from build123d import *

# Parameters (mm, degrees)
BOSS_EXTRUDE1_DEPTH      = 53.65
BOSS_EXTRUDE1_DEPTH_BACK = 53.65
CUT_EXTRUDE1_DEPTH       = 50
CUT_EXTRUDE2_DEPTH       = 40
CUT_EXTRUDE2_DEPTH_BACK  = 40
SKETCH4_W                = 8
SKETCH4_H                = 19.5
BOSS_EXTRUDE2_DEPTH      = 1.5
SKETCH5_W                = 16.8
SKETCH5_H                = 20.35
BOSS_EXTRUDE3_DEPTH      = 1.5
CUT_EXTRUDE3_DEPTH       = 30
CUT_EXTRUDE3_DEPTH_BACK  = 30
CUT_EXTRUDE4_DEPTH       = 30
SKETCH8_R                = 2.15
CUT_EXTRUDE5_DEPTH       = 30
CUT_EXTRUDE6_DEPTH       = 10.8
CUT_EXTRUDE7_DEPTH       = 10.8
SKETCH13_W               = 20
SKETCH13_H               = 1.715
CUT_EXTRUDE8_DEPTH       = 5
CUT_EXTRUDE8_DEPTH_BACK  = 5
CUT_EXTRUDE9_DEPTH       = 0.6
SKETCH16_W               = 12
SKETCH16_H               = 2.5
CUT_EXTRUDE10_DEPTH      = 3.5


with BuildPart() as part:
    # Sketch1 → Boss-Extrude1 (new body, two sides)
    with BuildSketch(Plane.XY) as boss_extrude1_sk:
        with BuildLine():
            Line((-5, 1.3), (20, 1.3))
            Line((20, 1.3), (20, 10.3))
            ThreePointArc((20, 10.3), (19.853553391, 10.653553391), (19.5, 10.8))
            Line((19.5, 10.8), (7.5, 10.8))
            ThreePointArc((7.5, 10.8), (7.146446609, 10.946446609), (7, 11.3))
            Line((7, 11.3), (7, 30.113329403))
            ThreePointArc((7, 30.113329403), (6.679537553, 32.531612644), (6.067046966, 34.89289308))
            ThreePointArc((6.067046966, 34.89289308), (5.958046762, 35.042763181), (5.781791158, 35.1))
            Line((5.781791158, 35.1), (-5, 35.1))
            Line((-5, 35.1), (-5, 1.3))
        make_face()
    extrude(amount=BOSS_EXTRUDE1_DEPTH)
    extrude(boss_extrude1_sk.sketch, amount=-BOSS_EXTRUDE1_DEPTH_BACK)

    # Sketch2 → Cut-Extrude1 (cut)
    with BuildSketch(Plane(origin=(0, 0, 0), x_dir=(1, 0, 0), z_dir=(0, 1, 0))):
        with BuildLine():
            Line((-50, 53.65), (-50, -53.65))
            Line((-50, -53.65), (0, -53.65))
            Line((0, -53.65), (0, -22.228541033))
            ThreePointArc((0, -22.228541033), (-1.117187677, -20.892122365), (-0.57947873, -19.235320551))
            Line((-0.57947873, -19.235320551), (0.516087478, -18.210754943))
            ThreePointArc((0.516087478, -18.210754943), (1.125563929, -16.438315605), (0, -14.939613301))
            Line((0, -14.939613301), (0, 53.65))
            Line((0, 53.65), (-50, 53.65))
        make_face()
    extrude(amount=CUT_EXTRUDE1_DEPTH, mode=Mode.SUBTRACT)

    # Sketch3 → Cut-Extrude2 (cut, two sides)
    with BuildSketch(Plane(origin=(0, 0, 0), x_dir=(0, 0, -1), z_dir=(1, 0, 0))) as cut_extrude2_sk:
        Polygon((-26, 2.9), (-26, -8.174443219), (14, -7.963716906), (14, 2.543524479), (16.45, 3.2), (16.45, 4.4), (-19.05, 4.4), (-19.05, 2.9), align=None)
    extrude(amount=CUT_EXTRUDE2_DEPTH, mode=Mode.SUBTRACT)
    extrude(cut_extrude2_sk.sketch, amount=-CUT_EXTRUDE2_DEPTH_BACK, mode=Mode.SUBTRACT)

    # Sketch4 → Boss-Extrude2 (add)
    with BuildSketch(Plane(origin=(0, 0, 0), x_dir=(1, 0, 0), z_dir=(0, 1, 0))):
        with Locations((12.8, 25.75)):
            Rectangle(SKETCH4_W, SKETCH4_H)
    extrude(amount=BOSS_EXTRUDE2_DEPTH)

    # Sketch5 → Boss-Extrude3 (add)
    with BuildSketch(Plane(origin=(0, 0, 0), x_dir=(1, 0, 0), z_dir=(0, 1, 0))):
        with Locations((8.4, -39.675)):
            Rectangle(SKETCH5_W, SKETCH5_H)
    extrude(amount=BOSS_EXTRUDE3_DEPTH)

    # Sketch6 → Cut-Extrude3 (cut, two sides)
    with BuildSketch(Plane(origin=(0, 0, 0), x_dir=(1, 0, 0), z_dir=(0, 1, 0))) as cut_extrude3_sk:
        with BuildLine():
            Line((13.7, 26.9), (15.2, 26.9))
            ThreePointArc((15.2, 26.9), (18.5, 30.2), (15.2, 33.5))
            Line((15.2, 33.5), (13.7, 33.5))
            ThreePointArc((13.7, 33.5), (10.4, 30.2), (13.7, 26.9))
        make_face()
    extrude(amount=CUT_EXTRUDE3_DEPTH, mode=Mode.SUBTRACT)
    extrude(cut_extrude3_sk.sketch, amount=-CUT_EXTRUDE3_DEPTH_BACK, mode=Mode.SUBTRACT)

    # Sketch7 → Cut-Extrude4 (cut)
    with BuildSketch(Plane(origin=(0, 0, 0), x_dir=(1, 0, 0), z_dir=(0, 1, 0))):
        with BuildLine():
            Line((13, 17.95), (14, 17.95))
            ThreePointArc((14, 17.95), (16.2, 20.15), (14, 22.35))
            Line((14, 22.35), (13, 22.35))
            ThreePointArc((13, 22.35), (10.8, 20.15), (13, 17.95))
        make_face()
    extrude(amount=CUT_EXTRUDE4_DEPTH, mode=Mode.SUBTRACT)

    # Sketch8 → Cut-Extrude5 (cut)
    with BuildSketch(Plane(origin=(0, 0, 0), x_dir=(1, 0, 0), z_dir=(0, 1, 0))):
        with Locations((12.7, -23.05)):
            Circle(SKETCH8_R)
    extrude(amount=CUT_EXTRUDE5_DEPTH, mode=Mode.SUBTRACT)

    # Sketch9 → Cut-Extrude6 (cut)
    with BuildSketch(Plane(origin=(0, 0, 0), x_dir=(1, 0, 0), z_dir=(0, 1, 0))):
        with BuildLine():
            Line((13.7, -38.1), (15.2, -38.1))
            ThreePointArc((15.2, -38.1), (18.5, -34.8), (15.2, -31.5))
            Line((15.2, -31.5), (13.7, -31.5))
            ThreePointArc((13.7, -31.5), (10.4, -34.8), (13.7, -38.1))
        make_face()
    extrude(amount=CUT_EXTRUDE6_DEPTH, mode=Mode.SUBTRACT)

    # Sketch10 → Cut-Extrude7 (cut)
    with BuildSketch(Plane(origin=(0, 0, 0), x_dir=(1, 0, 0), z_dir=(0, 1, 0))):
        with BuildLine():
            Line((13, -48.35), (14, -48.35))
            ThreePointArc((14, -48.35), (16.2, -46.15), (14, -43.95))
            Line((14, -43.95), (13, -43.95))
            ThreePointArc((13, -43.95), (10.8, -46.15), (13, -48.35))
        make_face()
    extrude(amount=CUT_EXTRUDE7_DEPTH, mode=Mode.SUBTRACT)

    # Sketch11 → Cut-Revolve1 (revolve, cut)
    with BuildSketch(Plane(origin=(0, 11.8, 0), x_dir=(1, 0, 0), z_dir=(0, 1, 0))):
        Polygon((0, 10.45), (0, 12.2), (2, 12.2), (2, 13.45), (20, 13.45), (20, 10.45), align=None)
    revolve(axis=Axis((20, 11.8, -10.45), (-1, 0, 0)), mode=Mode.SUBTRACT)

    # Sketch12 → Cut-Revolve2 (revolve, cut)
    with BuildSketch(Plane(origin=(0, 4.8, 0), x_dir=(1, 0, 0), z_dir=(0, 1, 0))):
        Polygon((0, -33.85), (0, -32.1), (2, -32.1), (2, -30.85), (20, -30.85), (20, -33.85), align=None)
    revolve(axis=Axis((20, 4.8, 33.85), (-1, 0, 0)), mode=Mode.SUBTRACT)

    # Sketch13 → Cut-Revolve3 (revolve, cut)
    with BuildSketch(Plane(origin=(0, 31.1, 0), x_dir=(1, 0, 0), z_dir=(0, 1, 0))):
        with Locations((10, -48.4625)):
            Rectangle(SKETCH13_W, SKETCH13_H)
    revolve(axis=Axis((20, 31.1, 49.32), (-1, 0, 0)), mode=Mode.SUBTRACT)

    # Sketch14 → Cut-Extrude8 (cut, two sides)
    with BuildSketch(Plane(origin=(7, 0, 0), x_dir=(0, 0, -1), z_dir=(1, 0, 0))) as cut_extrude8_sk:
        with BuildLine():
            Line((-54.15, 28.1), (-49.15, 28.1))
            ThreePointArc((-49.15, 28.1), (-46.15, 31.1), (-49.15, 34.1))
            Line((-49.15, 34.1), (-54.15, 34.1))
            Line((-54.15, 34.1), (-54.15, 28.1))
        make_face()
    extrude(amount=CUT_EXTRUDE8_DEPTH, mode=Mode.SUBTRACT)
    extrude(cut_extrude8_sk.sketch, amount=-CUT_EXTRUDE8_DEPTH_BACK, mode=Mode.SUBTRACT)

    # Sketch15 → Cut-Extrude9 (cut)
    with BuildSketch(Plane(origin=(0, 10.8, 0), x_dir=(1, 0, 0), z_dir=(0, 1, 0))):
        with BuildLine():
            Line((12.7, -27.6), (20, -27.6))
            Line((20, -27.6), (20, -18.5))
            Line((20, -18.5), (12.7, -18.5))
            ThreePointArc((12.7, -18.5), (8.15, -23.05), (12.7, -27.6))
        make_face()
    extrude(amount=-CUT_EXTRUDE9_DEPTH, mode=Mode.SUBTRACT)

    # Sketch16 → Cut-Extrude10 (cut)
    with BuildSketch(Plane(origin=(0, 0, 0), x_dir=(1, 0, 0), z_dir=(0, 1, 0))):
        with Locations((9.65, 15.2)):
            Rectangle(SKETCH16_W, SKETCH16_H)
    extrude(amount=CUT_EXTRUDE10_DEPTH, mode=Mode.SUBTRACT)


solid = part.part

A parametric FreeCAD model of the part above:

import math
import FreeCAD as App
import Part
import Sketcher
from FreeCAD import Vector
Q = App.Units.Quantity

doc = App.newDocument("Part")
body = doc.addObject("PartDesign::Body", "Body")

# Sketch on XY plane
sketch1 = body.newObject("Sketcher::SketchObject", "Sketch")
sketch1.AttachmentSupport = (doc.getObject("XY_Plane"), [""])
sketch1.MapMode = "FlatFace"
sketch1.addGeometry([
    Part.LineSegment(Vector(-5, 1.3, 0), Vector(20, 1.3, 0)),  # 0
    Part.LineSegment(Vector(20, 1.3, 0), Vector(20, 10.3, 0)),  # 1
    Part.ArcOfCircle(Part.Circle(Vector(19.5, 10.3, 0), Vector(0, 0, 1), 0.5), math.radians(0), math.radians(90)),  # 2
    Part.LineSegment(Vector(19.5, 10.8, 0), Vector(7.5, 10.8, 0)),  # 3
    Part.ArcOfCircle(Part.Circle(Vector(7.5, 11.3, 0), Vector(0, 0, 1), 0.5), math.radians(180), math.radians(270)),  # 4
    Part.LineSegment(Vector(7, 11.3, 0), Vector(7, 30.11, 0)),  # 5
    Part.ArcOfCircle(Part.Circle(Vector(-12.95, 28.7, 0), Vector(0, 0, 1), 20), math.radians(4.05), math.radians(18.04)),  # 6
    Part.ArcOfCircle(Part.Circle(Vector(5.78, 34.8, 0), Vector(0, 0, 1), 0.3), math.radians(18), math.radians(90)),  # 7
    Part.LineSegment(Vector(5.78, 35.1, 0), Vector(-5, 35.1, 0)),  # 8
    Part.LineSegment(Vector(-5, 35.1, 0), Vector(-5, 1.3, 0)),  # 9
], False)
sketch1.addConstraint([
    Sketcher.Constraint("Coincident", 0, 2, 1, 1),
    Sketcher.Constraint("Tangent", 1, 2, 2, 1),
    Sketcher.Constraint("Tangent", 2, 2, 3, 1),
    Sketcher.Constraint("Tangent", 3, 2, 4, 2),
    Sketcher.Constraint("Tangent", 4, 1, 5, 1),
    Sketcher.Constraint("Coincident", 5, 2, 6, 1),
    Sketcher.Constraint("Tangent", 6, 2, 7, 1),
    Sketcher.Constraint("Tangent", 7, 2, 8, 1),
    Sketcher.Constraint("Coincident", 8, 2, 9, 1),
    Sketcher.Constraint("Coincident", 9, 2, 0, 1),
    Sketcher.Constraint("Horizontal", 0),
    Sketcher.Constraint("Vertical", 1),
    Sketcher.Constraint("Horizontal", 3),
    Sketcher.Constraint("Vertical", 5),
    Sketcher.Constraint("Horizontal", 8),
    Sketcher.Constraint("Vertical", 9),
    Sketcher.Constraint("Equal", 2, 4),
    Sketcher.Constraint("Radius", 6, 20.0),
    Sketcher.Constraint("Radius", 2, 0.5),
    Sketcher.Constraint("Radius", 7, 0.3),
    Sketcher.Constraint("DistanceX", 0, 1, 0, 2, 25.0),
    Sketcher.Constraint("DistanceX", 3, 2, 3, 1, 12.0),
    Sketcher.Constraint("DistanceY", 1, 1, 1, 2, 9.0),
    Sketcher.Constraint("DistanceY", 9, 2, 9, 1, 33.8),
    Sketcher.Constraint("DistanceX", -1, 1, 0, 2, 20.0),
    Sketcher.Constraint("DistanceY", -1, 1, 2, 3, 10.3),
    Sketcher.Constraint("DistanceY", -1, 1, 6, 3, 28.7),
    Sketcher.Constraint("DistanceX", 6, 3, -1, 1, 12.95),
])
pad1 = body.newObject("PartDesign::Pad", "Pad")
pad1.Profile = sketch1
pad1.Type = "TwoLengths"
pad1.Length = 53.65
pad1.Length2 = 53.65

# Sketch on XZ plane
sketch2 = body.newObject("Sketcher::SketchObject", "Sketch001")
sketch2.AttachmentSupport = (doc.getObject("XZ_Plane"), [""])
sketch2.MapMode = "FlatFace"
sketch2.addGeometry([
    Part.LineSegment(Vector(-50, -53.6, 0), Vector(-50, 53.6, 0)),  # 0
    Part.LineSegment(Vector(-50, 53.6, 0), Vector(0, 53.6, 0)),  # 1
    Part.LineSegment(Vector(0, 53.6, 0), Vector(0, 22.2, 0)),  # 2
    Part.ArcOfCircle(Part.Circle(Vector(0.7, 20.6, 0), Vector(0, 0, 1), 1.8), math.radians(111), math.radians(227)),  # 3
    Part.LineSegment(Vector(-0.6, 19.2, 0), Vector(0.5, 18.2, 0)),  # 4
    Part.ArcOfCircle(Part.Circle(Vector(-0.8, 16.8, 0), Vector(0, 0, 1), 2), math.radians(-65), math.radians(47)),  # 5
    Part.LineSegment(Vector(0, 14.9, 0), Vector(0, -53.6, 0)),  # 6
    Part.LineSegment(Vector(0, -53.6, 0), Vector(-50, -53.6, 0)),  # 7
], False)
sketch2.addConstraint([
    Sketcher.Constraint("Coincident", 0, 2, 1, 1),
    Sketcher.Constraint("Coincident", 1, 2, 2, 1),
    Sketcher.Constraint("Coincident", 2, 2, 3, 1),
    Sketcher.Constraint("Tangent", 3, 2, 4, 1),
    Sketcher.Constraint("Tangent", 4, 2, 5, 2),
    Sketcher.Constraint("Coincident", 5, 1, 6, 1),
    Sketcher.Constraint("Coincident", 6, 2, 7, 1),
    Sketcher.Constraint("Coincident", 7, 2, 0, 1),
    Sketcher.Constraint("Vertical", 0),
    Sketcher.Constraint("Horizontal", 1),
    Sketcher.Constraint("Vertical", 2),
    Sketcher.Constraint("Vertical", 6),
    Sketcher.Constraint("Horizontal", 7),
    Sketcher.Constraint("Symmetric", 1, 2, 6, 2, -1, 1),
    Sketcher.Constraint("PointOnObject", 1, 2, -2),
    Sketcher.Constraint("Radius", 5, 2.0),
    Sketcher.Constraint("Radius", 3, 1.8),
    Sketcher.Constraint("DistanceX", 1, 1, 1, 2, 50.0),
    Sketcher.Constraint("DistanceY", 0, 1, 0, 2, 107.3),
    Sketcher.Constraint("Distance", 4, 1.5),
    Sketcher.Constraint("DistanceX", 5, 3, 3, 3, 1.5),
    Sketcher.Constraint("DistanceY", 3, 3, 0, 2, 33.1),
    Sketcher.Constraint("DistanceX", -1, 1, 3, 3, 0.65),
])
pocket1 = body.newObject("PartDesign::Pocket", "Pocket")
pocket1.Profile = sketch2
pocket1.Length = 50

# Sketch on YZ plane
sketch3 = body.newObject("Sketcher::SketchObject", "Sketch002")
sketch3.AttachmentSupport = (doc.getObject("YZ_Plane"), [""])
sketch3.MapMode = "FlatFace"
sketch3.addGeometry([
    Part.LineSegment(Vector(2.9, 26, 0), Vector(-8.2, 26, 0)),  # 0
    Part.LineSegment(Vector(-8.2, 26, 0), Vector(-8, -14, 0)),  # 1
    Part.LineSegment(Vector(-8, -14, 0), Vector(2.5, -14, 0)),  # 2
    Part.LineSegment(Vector(2.5, -14, 0), Vector(3.2, -16.4, 0)),  # 3
    Part.LineSegment(Vector(3.2, -16.4, 0), Vector(4.4, -16.4, 0)),  # 4
    Part.LineSegment(Vector(4.4, -16.4, 0), Vector(4.4, 19.1, 0)),  # 5
    Part.LineSegment(Vector(4.4, 19.1, 0), Vector(2.9, 19.1, 0)),  # 6
    Part.LineSegment(Vector(2.9, 19.1, 0), Vector(2.9, 26, 0)),  # 7
], False)
sketch3.addConstraint([
    Sketcher.Constraint("Coincident", 0, 2, 1, 1),
    Sketcher.Constraint("Coincident", 1, 2, 2, 1),
    Sketcher.Constraint("Coincident", 2, 2, 3, 1),
    Sketcher.Constraint("Coincident", 3, 2, 4, 1),
    Sketcher.Constraint("Coincident", 4, 2, 5, 1),
    Sketcher.Constraint("Coincident", 5, 2, 6, 1),
    Sketcher.Constraint("Coincident", 6, 2, 7, 1),
    Sketcher.Constraint("Coincident", 7, 2, 0, 1),
    Sketcher.Constraint("Horizontal", 0),
    Sketcher.Constraint("Horizontal", 2),
    Sketcher.Constraint("Horizontal", 4),
    Sketcher.Constraint("Vertical", 5),
    Sketcher.Constraint("Horizontal", 6),
    Sketcher.Constraint("Vertical", 7),
    Sketcher.Constraint("Angle", 3, Q("-75 deg")),
    Sketcher.Constraint("DistanceX", 4, 1, 4, 2, 1.2),
    Sketcher.Constraint("DistanceX", 6, 2, 6, 1, 1.5),
    Sketcher.Constraint("DistanceY", 5, 1, 5, 2, 35.5),
    Sketcher.Constraint("DistanceY", -1, 1, 0, 2, 26.0),
    Sketcher.Constraint("DistanceY", 1, 2, -1, 1, 14.0),
    Sketcher.Constraint("DistanceY", 7, 1, 7, 2, 6.95),
    Sketcher.Constraint("DistanceX", -1, 1, 3, 2, 3.2),
    Sketcher.Constraint("DistanceX", 2, 1, 2, 2, 10.507241),
    Sketcher.Constraint("DistanceX", 0, 2, 0, 1, 11.074443),
])
pocket2 = body.newObject("PartDesign::Pocket", "Pocket001")
pocket2.Profile = sketch3
pocket2.Type = "ThroughAll"
pocket2.Midplane = True

# Sketch on XZ plane
sketch4 = body.newObject("Sketcher::SketchObject", "Sketch003")
sketch4.AttachmentSupport = (doc.getObject("XZ_Plane"), [""])
sketch4.MapMode = "FlatFace"
sketch4.addGeometry([
    Part.LineSegment(Vector(9, -36, 0), Vector(9, -16, 0)),
    Part.LineSegment(Vector(9, -16, 0), Vector(17, -16, 0)),
    Part.LineSegment(Vector(17, -16, 0), Vector(17, -36, 0)),
    Part.LineSegment(Vector(17, -36, 0), Vector(9, -36, 0)),
], False)
sketch4.addConstraint([
    Sketcher.Constraint("Coincident", 0, 2, 1, 1),
    Sketcher.Constraint("Coincident", 1, 2, 2, 1),
    Sketcher.Constraint("Coincident", 2, 2, 3, 1),
    Sketcher.Constraint("Coincident", 3, 2, 0, 1),
    Sketcher.Constraint("Vertical", 0),
    Sketcher.Constraint("Horizontal", 1),
    Sketcher.Constraint("Vertical", 2),
    Sketcher.Constraint("Horizontal", 3),
    Sketcher.Constraint("DistanceX", 1, 1, 1, 2, 8.0),
    Sketcher.Constraint("DistanceY", 0, 1, 0, 2, 19.5),
    Sketcher.Constraint("DistanceY", 0, 2, -1, 1, 16.0),
    Sketcher.Constraint("DistanceX", -1, 1, 0, 2, 8.8),
])
pad2 = body.newObject("PartDesign::Pad", "Pad001")
pad2.Profile = sketch4
pad2.Length = 1.5
pad2.Reversed = True

# Sketch on XZ plane
sketch5 = body.newObject("Sketcher::SketchObject", "Sketch004")
sketch5.AttachmentSupport = (doc.getObject("XZ_Plane"), [""])
sketch5.MapMode = "FlatFace"
sketch5.addGeometry([
    Part.LineSegment(Vector(0, 30, 0), Vector(0, 50, 0)),
    Part.LineSegment(Vector(0, 50, 0), Vector(17, 50, 0)),
    Part.LineSegment(Vector(17, 50, 0), Vector(17, 30, 0)),
    Part.LineSegment(Vector(17, 30, 0), Vector(0, 30, 0)),
], False)
sketch5.addConstraint([
    Sketcher.Constraint("Coincident", 0, 2, 1, 1),
    Sketcher.Constraint("Coincident", 1, 2, 2, 1),
    Sketcher.Constraint("Coincident", 2, 2, 3, 1),
    Sketcher.Constraint("Coincident", 3, 2, 0, 1),
    Sketcher.Constraint("Vertical", 0),
    Sketcher.Constraint("Horizontal", 1),
    Sketcher.Constraint("Vertical", 2),
    Sketcher.Constraint("Horizontal", 3),
    Sketcher.Constraint("PointOnObject", 0, 2, -2),
    Sketcher.Constraint("DistanceX", 1, 1, 1, 2, 16.8),
    Sketcher.Constraint("DistanceY", 0, 1, 0, 2, 20.35),
    Sketcher.Constraint("DistanceY", -1, 1, 2, 2, 29.5),
])
pad3 = body.newObject("PartDesign::Pad", "Pad002")
pad3.Profile = sketch5
pad3.Length = 1.5
pad3.Reversed = True

# Sketch on XZ plane
sketch6 = body.newObject("Sketcher::SketchObject", "Sketch005")
sketch6.AttachmentSupport = (doc.getObject("XZ_Plane"), [""])
sketch6.MapMode = "FlatFace"
sketch6.addGeometry([
    Part.LineSegment(Vector(13.7, -26.9, 0), Vector(15.2, -26.9, 0)),
    Part.ArcOfCircle(Part.Circle(Vector(15.2, -30.2, 0), Vector(0, 0, 1), 3.3), math.radians(-90), math.radians(90)),
    Part.LineSegment(Vector(15.2, -33.5, 0), Vector(13.7, -33.5, 0)),
    Part.ArcOfCircle(Part.Circle(Vector(13.7, -30.2, 0), Vector(0, 0, 1), 3.3), math.radians(90), math.radians(270)),
], False)
sketch6.addConstraint([
    Sketcher.Constraint("Tangent", 0, 2, 1, 2),
    Sketcher.Constraint("Tangent", 1, 1, 2, 1),
    Sketcher.Constraint("Tangent", 2, 2, 3, 2),
    Sketcher.Constraint("Tangent", 3, 1, 0, 1),
    Sketcher.Constraint("Horizontal", 0),
    Sketcher.Constraint("Horizontal", 2),
    Sketcher.Constraint("Radius", 1, 3.3),
    Sketcher.Constraint("DistanceX", 0, 1, 0, 2, 1.5),
    Sketcher.Constraint("DistanceX", -1, 1, 1, 3, 15.2),
    Sketcher.Constraint("DistanceY", 1, 3, -1, 1, 30.2),
])
pocket3 = body.newObject("PartDesign::Pocket", "Pocket002")
pocket3.Profile = sketch6
pocket3.Type = "ThroughAll"
pocket3.Midplane = True

# Sketch on XZ plane
sketch7 = body.newObject("Sketcher::SketchObject", "Sketch006")
sketch7.AttachmentSupport = (doc.getObject("XZ_Plane"), [""])
sketch7.MapMode = "FlatFace"
sketch7.addGeometry([
    Part.LineSegment(Vector(13, -17.9, 0), Vector(14, -17.9, 0)),
    Part.ArcOfCircle(Part.Circle(Vector(14, -20.1, 0), Vector(0, 0, 1), 2.2), math.radians(-90), math.radians(90)),
    Part.LineSegment(Vector(14, -22.4, 0), Vector(13, -22.4, 0)),
    Part.ArcOfCircle(Part.Circle(Vector(13, -20.1, 0), Vector(0, 0, 1), 2.2), math.radians(90), math.radians(270)),
], False)
sketch7.addConstraint([
    Sketcher.Constraint("Tangent", 0, 2, 1, 2),
    Sketcher.Constraint("Tangent", 1, 1, 2, 1),
    Sketcher.Constraint("Tangent", 2, 2, 3, 2),
    Sketcher.Constraint("Tangent", 3, 1, 0, 1),
    Sketcher.Constraint("Horizontal", 0),
    Sketcher.Constraint("Horizontal", 2),
    Sketcher.Constraint("Radius", 1, 2.2),
    Sketcher.Constraint("DistanceX", 0, 1, 0, 2, 1.0),
    Sketcher.Constraint("DistanceX", -1, 1, 1, 3, 14.0),
    Sketcher.Constraint("DistanceY", 1, 3, -1, 1, 20.15),
])
pocket4 = body.newObject("PartDesign::Pocket", "Pocket003")
pocket4.Profile = sketch7
pocket4.Length = 30

# Sketch on XZ plane
sketch8 = body.newObject("Sketcher::SketchObject", "Sketch007")
sketch8.AttachmentSupport = (doc.getObject("XZ_Plane"), [""])
sketch8.MapMode = "FlatFace"
sketch8.addGeometry(Part.Circle(Vector(12.7, 23.1, 0), Vector(0, 0, 1), 2.1), False)
sketch8.addConstraint([
    Sketcher.Constraint("Diameter", 0, 4.3),
    Sketcher.Constraint("DistanceX", -1, 1, 0, 3, 12.7),
    Sketcher.Constraint("DistanceY", -1, 1, 0, 3, 23.05),
])
pocket5 = body.newObject("PartDesign::Pocket", "Pocket004")
pocket5.Profile = sketch8
pocket5.Length = 30

# Sketch on XZ plane
sketch9 = body.newObject("Sketcher::SketchObject", "Sketch008")
sketch9.AttachmentSupport = (doc.getObject("XZ_Plane"), [""])
sketch9.MapMode = "FlatFace"
sketch9.addGeometry([
    Part.LineSegment(Vector(13.7, 38.1, 0), Vector(15.2, 38.1, 0)),
    Part.ArcOfCircle(Part.Circle(Vector(15.2, 34.8, 0), Vector(0, 0, 1), 3.3), math.radians(-90), math.radians(90)),
    Part.LineSegment(Vector(15.2, 31.5, 0), Vector(13.7, 31.5, 0)),
    Part.ArcOfCircle(Part.Circle(Vector(13.7, 34.8, 0), Vector(0, 0, 1), 3.3), math.radians(90), math.radians(270)),
], False)
sketch9.addConstraint([
    Sketcher.Constraint("Tangent", 0, 2, 1, 2),
    Sketcher.Constraint("Tangent", 1, 1, 2, 1),
    Sketcher.Constraint("Tangent", 2, 2, 3, 2),
    Sketcher.Constraint("Tangent", 3, 1, 0, 1),
    Sketcher.Constraint("Horizontal", 0),
    Sketcher.Constraint("Horizontal", 2),
    Sketcher.Constraint("Radius", 1, 3.3),
    Sketcher.Constraint("DistanceX", 0, 1, 0, 2, 1.5),
    Sketcher.Constraint("DistanceX", -1, 1, 1, 3, 15.2),
    Sketcher.Constraint("DistanceY", -1, 1, 1, 3, 34.8),
])
pocket6 = body.newObject("PartDesign::Pocket", "Pocket005")
pocket6.Profile = sketch9
pocket6.Length = 10.8

# Sketch on XZ plane
sketch10 = body.newObject("Sketcher::SketchObject", "Sketch009")
sketch10.AttachmentSupport = (doc.getObject("XZ_Plane"), [""])
sketch10.MapMode = "FlatFace"
sketch10.addGeometry([
    Part.LineSegment(Vector(13, 48.4, 0), Vector(14, 48.4, 0)),
    Part.ArcOfCircle(Part.Circle(Vector(14, 46.1, 0), Vector(0, 0, 1), 2.2), math.radians(-90), math.radians(90)),
    Part.LineSegment(Vector(14, 44, 0), Vector(13, 44, 0)),
    Part.ArcOfCircle(Part.Circle(Vector(13, 46.1, 0), Vector(0, 0, 1), 2.2), math.radians(90), math.radians(270)),
], False)
sketch10.addConstraint([
    Sketcher.Constraint("Tangent", 0, 2, 1, 2),
    Sketcher.Constraint("Tangent", 1, 1, 2, 1),
    Sketcher.Constraint("Tangent", 2, 2, 3, 2),
    Sketcher.Constraint("Tangent", 3, 1, 0, 1),
    Sketcher.Constraint("Horizontal", 0),
    Sketcher.Constraint("Horizontal", 2),
    Sketcher.Constraint("Radius", 1, 2.2),
    Sketcher.Constraint("DistanceX", 0, 1, 0, 2, 1.0),
    Sketcher.Constraint("DistanceX", -1, 1, 1, 3, 14.0),
    Sketcher.Constraint("DistanceY", -1, 1, 1, 3, 46.15),
])
pocket7 = body.newObject("PartDesign::Pocket", "Pocket006")
pocket7.Profile = sketch10
pocket7.Length = 10.8

# Sketch on XZ plane
sketch11 = body.newObject("Sketcher::SketchObject", "Sketch010")
sketch11.AttachmentSupport = (doc.getObject("XZ_Plane"), [""])
sketch11.MapMode = "FlatFace"
sketch11.AttachmentOffset = App.Placement(Vector(0, 0, -11.8), App.Rotation())
sketch11.addGeometry([
    Part.LineSegment(Vector(0, -12.2, 0), Vector(0, -10.4, 0)),  # 0
    Part.LineSegment(Vector(0, -10.4, 0), Vector(20, -10.4, 0)),  # 1
    Part.LineSegment(Vector(20, -10.4, 0), Vector(20, -13.4, 0)),  # 2
    Part.LineSegment(Vector(20, -13.4, 0), Vector(2, -13.4, 0)),  # 3
    Part.LineSegment(Vector(2, -13.4, 0), Vector(2, -12.2, 0)),  # 4
    Part.LineSegment(Vector(2, -12.2, 0), Vector(0, -12.2, 0)),  # 5
], False)
sketch11.addGeometry(Part.LineSegment(Vector(20, -10.4, 0), Vector(0, -10.4, 0)), True)  # axis
sketch11.addConstraint([
    Sketcher.Constraint("Coincident", 0, 2, 1, 1),
    Sketcher.Constraint("Coincident", 1, 2, 2, 1),
    Sketcher.Constraint("Coincident", 2, 2, 3, 1),
    Sketcher.Constraint("Coincident", 3, 2, 4, 1),
    Sketcher.Constraint("Coincident", 4, 2, 5, 1),
    Sketcher.Constraint("Coincident", 5, 2, 0, 1),
    Sketcher.Constraint("Vertical", 0),
    Sketcher.Constraint("Horizontal", 1),
    Sketcher.Constraint("Vertical", 2),
    Sketcher.Constraint("Horizontal", 3),
    Sketcher.Constraint("Vertical", 4),
    Sketcher.Constraint("Horizontal", 5),
    Sketcher.Constraint("Horizontal", 6),
    Sketcher.Constraint("Coincident", 6, 1, 1, 2),
    Sketcher.Constraint("PointOnObject", 0, 2, -2),
    Sketcher.Constraint("PointOnObject", 6, 2, -2),
    Sketcher.Constraint("DistanceX", 1, 1, 1, 2, 20.0),
    Sketcher.Constraint("DistanceX", 3, 2, 3, 1, 18.0),
    Sketcher.Constraint("DistanceY", 2, 2, 2, 1, 3.0),
    Sketcher.Constraint("DistanceY", 0, 1, 0, 2, 1.75),
    Sketcher.Constraint("DistanceY", 4, 2, -1, 1, 12.2),
])
groove = body.newObject("PartDesign::Groove", "Groove")
groove.Profile = sketch11
groove.ReferenceAxis = (sketch11, ["Axis0"])
groove.Angle = 360

# Sketch on XZ plane
sketch12 = body.newObject("Sketcher::SketchObject", "Sketch011")
sketch12.AttachmentSupport = (doc.getObject("XZ_Plane"), [""])
sketch12.MapMode = "FlatFace"
sketch12.AttachmentOffset = App.Placement(Vector(0, 0, -4.8), App.Rotation())
sketch12.addGeometry([
    Part.LineSegment(Vector(0, 32.1, 0), Vector(0, 33.9, 0)),  # 0
    Part.LineSegment(Vector(0, 33.9, 0), Vector(20, 33.9, 0)),  # 1
    Part.LineSegment(Vector(20, 33.9, 0), Vector(20, 30.9, 0)),  # 2
    Part.LineSegment(Vector(20, 30.9, 0), Vector(2, 30.9, 0)),  # 3
    Part.LineSegment(Vector(2, 30.9, 0), Vector(2, 32.1, 0)),  # 4
    Part.LineSegment(Vector(2, 32.1, 0), Vector(0, 32.1, 0)),  # 5
], False)
sketch12.addGeometry(Part.LineSegment(Vector(20, 33.9, 0), Vector(0, 33.9, 0)), True)  # axis
sketch12.addConstraint([
    Sketcher.Constraint("Coincident", 0, 2, 1, 1),
    Sketcher.Constraint("Coincident", 1, 2, 2, 1),
    Sketcher.Constraint("Coincident", 2, 2, 3, 1),
    Sketcher.Constraint("Coincident", 3, 2, 4, 1),
    Sketcher.Constraint("Coincident", 4, 2, 5, 1),
    Sketcher.Constraint("Coincident", 5, 2, 0, 1),
    Sketcher.Constraint("Vertical", 0),
    Sketcher.Constraint("Horizontal", 1),
    Sketcher.Constraint("Vertical", 2),
    Sketcher.Constraint("Horizontal", 3),
    Sketcher.Constraint("Vertical", 4),
    Sketcher.Constraint("Horizontal", 5),
    Sketcher.Constraint("Horizontal", 6),
    Sketcher.Constraint("Coincident", 6, 1, 1, 2),
    Sketcher.Constraint("PointOnObject", 0, 2, -2),
    Sketcher.Constraint("PointOnObject", 6, 2, -2),
    Sketcher.Constraint("DistanceX", 1, 1, 1, 2, 20.0),
    Sketcher.Constraint("DistanceX", 3, 2, 3, 1, 18.0),
    Sketcher.Constraint("DistanceY", 2, 2, 2, 1, 3.0),
    Sketcher.Constraint("DistanceY", 0, 1, 0, 2, 1.75),
    Sketcher.Constraint("DistanceY", -1, 1, 4, 2, 32.1),
])
groove2 = body.newObject("PartDesign::Groove", "Groove001")
groove2.Profile = sketch12
groove2.ReferenceAxis = (sketch12, ["Axis0"])
groove2.Angle = 360

# Sketch on XZ plane
sketch13 = body.newObject("Sketcher::SketchObject", "Sketch012")
sketch13.AttachmentSupport = (doc.getObject("XZ_Plane"), [""])
sketch13.MapMode = "FlatFace"
sketch13.AttachmentOffset = App.Placement(Vector(0, 0, -31.1), App.Rotation())
sketch13.addGeometry([
    Part.LineSegment(Vector(0, 47.6, 0), Vector(0, 49.3, 0)),
    Part.LineSegment(Vector(0, 49.3, 0), Vector(20, 49.3, 0)),
    Part.LineSegment(Vector(20, 49.3, 0), Vector(20, 47.6, 0)),
    Part.LineSegment(Vector(20, 47.6, 0), Vector(0, 47.6, 0)),
], False)
sketch13.addGeometry(Part.LineSegment(Vector(20, 49.3, 0), Vector(0, 49.3, 0)), True)  # axis
sketch13.addConstraint([
    Sketcher.Constraint("Coincident", 0, 2, 1, 1),
    Sketcher.Constraint("Coincident", 1, 2, 2, 1),
    Sketcher.Constraint("Coincident", 2, 2, 3, 1),
    Sketcher.Constraint("Coincident", 3, 2, 0, 1),
    Sketcher.Constraint("Vertical", 0),
    Sketcher.Constraint("Horizontal", 1),
    Sketcher.Constraint("Vertical", 2),
    Sketcher.Constraint("Horizontal", 3),
    Sketcher.Constraint("Horizontal", 4),
    Sketcher.Constraint("Coincident", 4, 1, 1, 2),
    Sketcher.Constraint("PointOnObject", 0, 2, -2),
    Sketcher.Constraint("PointOnObject", 4, 2, -2),
    Sketcher.Constraint("DistanceX", 1, 1, 1, 2, 20.0),
    Sketcher.Constraint("DistanceY", 0, 1, 0, 2, 1.715),
    Sketcher.Constraint("DistanceY", -1, 1, 0, 2, 49.32),
])
groove3 = body.newObject("PartDesign::Groove", "Groove002")
groove3.Profile = sketch13
groove3.ReferenceAxis = (sketch13, ["Axis0"])
groove3.Angle = 360

# Sketch on YZ plane
sketch14 = body.newObject("Sketcher::SketchObject", "Sketch013")
sketch14.AttachmentSupport = (doc.getObject("YZ_Plane"), [""])
sketch14.MapMode = "FlatFace"
sketch14.AttachmentOffset = App.Placement(Vector(0, 0, 7), App.Rotation())
sketch14.addGeometry([
    Part.LineSegment(Vector(28.1, 54.1, 0), Vector(28.1, 49.1, 0)),
    Part.ArcOfCircle(Part.Circle(Vector(31.1, 49.1, 0), Vector(0, 0, 1), 3), math.radians(180), math.radians(360)),
    Part.LineSegment(Vector(34.1, 49.1, 0), Vector(34.1, 54.1, 0)),
    Part.LineSegment(Vector(34.1, 54.1, 0), Vector(28.1, 54.1, 0)),
], False)
sketch14.addConstraint([
    Sketcher.Constraint("Tangent", 0, 2, 1, 1),
    Sketcher.Constraint("Tangent", 1, 2, 2, 1),
    Sketcher.Constraint("Coincident", 2, 2, 3, 1),
    Sketcher.Constraint("Coincident", 3, 2, 0, 1),
    Sketcher.Constraint("Vertical", 0),
    Sketcher.Constraint("Vertical", 2),
    Sketcher.Constraint("Horizontal", 3),
    Sketcher.Constraint("Radius", 1, 3.0),
    Sketcher.Constraint("DistanceY", 0, 2, 0, 1, 5.0),
    Sketcher.Constraint("DistanceX", -1, 1, 1, 3, 31.1),
    Sketcher.Constraint("DistanceY", -1, 1, 1, 3, 49.15),
])
pocket8 = body.newObject("PartDesign::Pocket", "Pocket007")
pocket8.Profile = sketch14
pocket8.Type = "TwoLengths"
pocket8.Length = 5
pocket8.Length2 = 5
pocket8.Reversed = True

# Sketch on XZ plane
sketch15 = body.newObject("Sketcher::SketchObject", "Sketch014")
sketch15.AttachmentSupport = (doc.getObject("XZ_Plane"), [""])
sketch15.MapMode = "FlatFace"
sketch15.AttachmentOffset = App.Placement(Vector(0, 0, -10.8), App.Rotation())
sketch15.addGeometry([
    Part.LineSegment(Vector(12.7, 27.6, 0), Vector(20, 27.6, 0)),
    Part.LineSegment(Vector(20, 27.6, 0), Vector(20, 18.5, 0)),
    Part.LineSegment(Vector(20, 18.5, 0), Vector(12.7, 18.5, 0)),
    Part.ArcOfCircle(Part.Circle(Vector(12.7, 23.1, 0), Vector(0, 0, 1), 4.5), math.radians(90), math.radians(270)),
], False)
sketch15.addConstraint([
    Sketcher.Constraint("Coincident", 0, 2, 1, 1),
    Sketcher.Constraint("Coincident", 1, 2, 2, 1),
    Sketcher.Constraint("Tangent", 2, 2, 3, 2),
    Sketcher.Constraint("Tangent", 3, 1, 0, 1),
    Sketcher.Constraint("Horizontal", 0),
    Sketcher.Constraint("Vertical", 1),
    Sketcher.Constraint("Horizontal", 2),
    Sketcher.Constraint("Radius", 3, 4.55),
    Sketcher.Constraint("DistanceX", 0, 1, 0, 2, 7.3),
    Sketcher.Constraint("DistanceX", -1, 1, 0, 2, 20.0),
    Sketcher.Constraint("DistanceY", -1, 1, 0, 2, 27.6),
])
pocket9 = body.newObject("PartDesign::Pocket", "Pocket008")
pocket9.Profile = sketch15
pocket9.Length = 0.6
pocket9.Reversed = True

# Sketch on XZ plane
sketch16 = body.newObject("Sketcher::SketchObject", "Sketch015")
sketch16.AttachmentSupport = (doc.getObject("XZ_Plane"), [""])
sketch16.MapMode = "FlatFace"
sketch16.addGeometry([
    Part.LineSegment(Vector(3.6, -16.4, 0), Vector(3.6, -13.9, 0)),
    Part.LineSegment(Vector(3.6, -13.9, 0), Vector(15.7, -13.9, 0)),
    Part.LineSegment(Vector(15.7, -13.9, 0), Vector(15.7, -16.4, 0)),
    Part.LineSegment(Vector(15.7, -16.4, 0), Vector(3.6, -16.4, 0)),
], False)
sketch16.addConstraint([
    Sketcher.Constraint("Coincident", 0, 2, 1, 1),
    Sketcher.Constraint("Coincident", 1, 2, 2, 1),
    Sketcher.Constraint("Coincident", 2, 2, 3, 1),
    Sketcher.Constraint("Coincident", 3, 2, 0, 1),
    Sketcher.Constraint("Vertical", 0),
    Sketcher.Constraint("Horizontal", 1),
    Sketcher.Constraint("Vertical", 2),
    Sketcher.Constraint("Horizontal", 3),
    Sketcher.Constraint("DistanceX", 1, 1, 1, 2, 12.0),
    Sketcher.Constraint("DistanceY", 0, 1, 0, 2, 2.5),
    Sketcher.Constraint("DistanceX", -1, 1, 0, 2, 3.65),
    Sketcher.Constraint("DistanceY", 0, 2, -1, 1, 13.95),
])
pocket10 = body.newObject("PartDesign::Pocket", "Pocket009")
pocket10.Profile = sketch16
pocket10.Length = 3.5

doc.recompute()
